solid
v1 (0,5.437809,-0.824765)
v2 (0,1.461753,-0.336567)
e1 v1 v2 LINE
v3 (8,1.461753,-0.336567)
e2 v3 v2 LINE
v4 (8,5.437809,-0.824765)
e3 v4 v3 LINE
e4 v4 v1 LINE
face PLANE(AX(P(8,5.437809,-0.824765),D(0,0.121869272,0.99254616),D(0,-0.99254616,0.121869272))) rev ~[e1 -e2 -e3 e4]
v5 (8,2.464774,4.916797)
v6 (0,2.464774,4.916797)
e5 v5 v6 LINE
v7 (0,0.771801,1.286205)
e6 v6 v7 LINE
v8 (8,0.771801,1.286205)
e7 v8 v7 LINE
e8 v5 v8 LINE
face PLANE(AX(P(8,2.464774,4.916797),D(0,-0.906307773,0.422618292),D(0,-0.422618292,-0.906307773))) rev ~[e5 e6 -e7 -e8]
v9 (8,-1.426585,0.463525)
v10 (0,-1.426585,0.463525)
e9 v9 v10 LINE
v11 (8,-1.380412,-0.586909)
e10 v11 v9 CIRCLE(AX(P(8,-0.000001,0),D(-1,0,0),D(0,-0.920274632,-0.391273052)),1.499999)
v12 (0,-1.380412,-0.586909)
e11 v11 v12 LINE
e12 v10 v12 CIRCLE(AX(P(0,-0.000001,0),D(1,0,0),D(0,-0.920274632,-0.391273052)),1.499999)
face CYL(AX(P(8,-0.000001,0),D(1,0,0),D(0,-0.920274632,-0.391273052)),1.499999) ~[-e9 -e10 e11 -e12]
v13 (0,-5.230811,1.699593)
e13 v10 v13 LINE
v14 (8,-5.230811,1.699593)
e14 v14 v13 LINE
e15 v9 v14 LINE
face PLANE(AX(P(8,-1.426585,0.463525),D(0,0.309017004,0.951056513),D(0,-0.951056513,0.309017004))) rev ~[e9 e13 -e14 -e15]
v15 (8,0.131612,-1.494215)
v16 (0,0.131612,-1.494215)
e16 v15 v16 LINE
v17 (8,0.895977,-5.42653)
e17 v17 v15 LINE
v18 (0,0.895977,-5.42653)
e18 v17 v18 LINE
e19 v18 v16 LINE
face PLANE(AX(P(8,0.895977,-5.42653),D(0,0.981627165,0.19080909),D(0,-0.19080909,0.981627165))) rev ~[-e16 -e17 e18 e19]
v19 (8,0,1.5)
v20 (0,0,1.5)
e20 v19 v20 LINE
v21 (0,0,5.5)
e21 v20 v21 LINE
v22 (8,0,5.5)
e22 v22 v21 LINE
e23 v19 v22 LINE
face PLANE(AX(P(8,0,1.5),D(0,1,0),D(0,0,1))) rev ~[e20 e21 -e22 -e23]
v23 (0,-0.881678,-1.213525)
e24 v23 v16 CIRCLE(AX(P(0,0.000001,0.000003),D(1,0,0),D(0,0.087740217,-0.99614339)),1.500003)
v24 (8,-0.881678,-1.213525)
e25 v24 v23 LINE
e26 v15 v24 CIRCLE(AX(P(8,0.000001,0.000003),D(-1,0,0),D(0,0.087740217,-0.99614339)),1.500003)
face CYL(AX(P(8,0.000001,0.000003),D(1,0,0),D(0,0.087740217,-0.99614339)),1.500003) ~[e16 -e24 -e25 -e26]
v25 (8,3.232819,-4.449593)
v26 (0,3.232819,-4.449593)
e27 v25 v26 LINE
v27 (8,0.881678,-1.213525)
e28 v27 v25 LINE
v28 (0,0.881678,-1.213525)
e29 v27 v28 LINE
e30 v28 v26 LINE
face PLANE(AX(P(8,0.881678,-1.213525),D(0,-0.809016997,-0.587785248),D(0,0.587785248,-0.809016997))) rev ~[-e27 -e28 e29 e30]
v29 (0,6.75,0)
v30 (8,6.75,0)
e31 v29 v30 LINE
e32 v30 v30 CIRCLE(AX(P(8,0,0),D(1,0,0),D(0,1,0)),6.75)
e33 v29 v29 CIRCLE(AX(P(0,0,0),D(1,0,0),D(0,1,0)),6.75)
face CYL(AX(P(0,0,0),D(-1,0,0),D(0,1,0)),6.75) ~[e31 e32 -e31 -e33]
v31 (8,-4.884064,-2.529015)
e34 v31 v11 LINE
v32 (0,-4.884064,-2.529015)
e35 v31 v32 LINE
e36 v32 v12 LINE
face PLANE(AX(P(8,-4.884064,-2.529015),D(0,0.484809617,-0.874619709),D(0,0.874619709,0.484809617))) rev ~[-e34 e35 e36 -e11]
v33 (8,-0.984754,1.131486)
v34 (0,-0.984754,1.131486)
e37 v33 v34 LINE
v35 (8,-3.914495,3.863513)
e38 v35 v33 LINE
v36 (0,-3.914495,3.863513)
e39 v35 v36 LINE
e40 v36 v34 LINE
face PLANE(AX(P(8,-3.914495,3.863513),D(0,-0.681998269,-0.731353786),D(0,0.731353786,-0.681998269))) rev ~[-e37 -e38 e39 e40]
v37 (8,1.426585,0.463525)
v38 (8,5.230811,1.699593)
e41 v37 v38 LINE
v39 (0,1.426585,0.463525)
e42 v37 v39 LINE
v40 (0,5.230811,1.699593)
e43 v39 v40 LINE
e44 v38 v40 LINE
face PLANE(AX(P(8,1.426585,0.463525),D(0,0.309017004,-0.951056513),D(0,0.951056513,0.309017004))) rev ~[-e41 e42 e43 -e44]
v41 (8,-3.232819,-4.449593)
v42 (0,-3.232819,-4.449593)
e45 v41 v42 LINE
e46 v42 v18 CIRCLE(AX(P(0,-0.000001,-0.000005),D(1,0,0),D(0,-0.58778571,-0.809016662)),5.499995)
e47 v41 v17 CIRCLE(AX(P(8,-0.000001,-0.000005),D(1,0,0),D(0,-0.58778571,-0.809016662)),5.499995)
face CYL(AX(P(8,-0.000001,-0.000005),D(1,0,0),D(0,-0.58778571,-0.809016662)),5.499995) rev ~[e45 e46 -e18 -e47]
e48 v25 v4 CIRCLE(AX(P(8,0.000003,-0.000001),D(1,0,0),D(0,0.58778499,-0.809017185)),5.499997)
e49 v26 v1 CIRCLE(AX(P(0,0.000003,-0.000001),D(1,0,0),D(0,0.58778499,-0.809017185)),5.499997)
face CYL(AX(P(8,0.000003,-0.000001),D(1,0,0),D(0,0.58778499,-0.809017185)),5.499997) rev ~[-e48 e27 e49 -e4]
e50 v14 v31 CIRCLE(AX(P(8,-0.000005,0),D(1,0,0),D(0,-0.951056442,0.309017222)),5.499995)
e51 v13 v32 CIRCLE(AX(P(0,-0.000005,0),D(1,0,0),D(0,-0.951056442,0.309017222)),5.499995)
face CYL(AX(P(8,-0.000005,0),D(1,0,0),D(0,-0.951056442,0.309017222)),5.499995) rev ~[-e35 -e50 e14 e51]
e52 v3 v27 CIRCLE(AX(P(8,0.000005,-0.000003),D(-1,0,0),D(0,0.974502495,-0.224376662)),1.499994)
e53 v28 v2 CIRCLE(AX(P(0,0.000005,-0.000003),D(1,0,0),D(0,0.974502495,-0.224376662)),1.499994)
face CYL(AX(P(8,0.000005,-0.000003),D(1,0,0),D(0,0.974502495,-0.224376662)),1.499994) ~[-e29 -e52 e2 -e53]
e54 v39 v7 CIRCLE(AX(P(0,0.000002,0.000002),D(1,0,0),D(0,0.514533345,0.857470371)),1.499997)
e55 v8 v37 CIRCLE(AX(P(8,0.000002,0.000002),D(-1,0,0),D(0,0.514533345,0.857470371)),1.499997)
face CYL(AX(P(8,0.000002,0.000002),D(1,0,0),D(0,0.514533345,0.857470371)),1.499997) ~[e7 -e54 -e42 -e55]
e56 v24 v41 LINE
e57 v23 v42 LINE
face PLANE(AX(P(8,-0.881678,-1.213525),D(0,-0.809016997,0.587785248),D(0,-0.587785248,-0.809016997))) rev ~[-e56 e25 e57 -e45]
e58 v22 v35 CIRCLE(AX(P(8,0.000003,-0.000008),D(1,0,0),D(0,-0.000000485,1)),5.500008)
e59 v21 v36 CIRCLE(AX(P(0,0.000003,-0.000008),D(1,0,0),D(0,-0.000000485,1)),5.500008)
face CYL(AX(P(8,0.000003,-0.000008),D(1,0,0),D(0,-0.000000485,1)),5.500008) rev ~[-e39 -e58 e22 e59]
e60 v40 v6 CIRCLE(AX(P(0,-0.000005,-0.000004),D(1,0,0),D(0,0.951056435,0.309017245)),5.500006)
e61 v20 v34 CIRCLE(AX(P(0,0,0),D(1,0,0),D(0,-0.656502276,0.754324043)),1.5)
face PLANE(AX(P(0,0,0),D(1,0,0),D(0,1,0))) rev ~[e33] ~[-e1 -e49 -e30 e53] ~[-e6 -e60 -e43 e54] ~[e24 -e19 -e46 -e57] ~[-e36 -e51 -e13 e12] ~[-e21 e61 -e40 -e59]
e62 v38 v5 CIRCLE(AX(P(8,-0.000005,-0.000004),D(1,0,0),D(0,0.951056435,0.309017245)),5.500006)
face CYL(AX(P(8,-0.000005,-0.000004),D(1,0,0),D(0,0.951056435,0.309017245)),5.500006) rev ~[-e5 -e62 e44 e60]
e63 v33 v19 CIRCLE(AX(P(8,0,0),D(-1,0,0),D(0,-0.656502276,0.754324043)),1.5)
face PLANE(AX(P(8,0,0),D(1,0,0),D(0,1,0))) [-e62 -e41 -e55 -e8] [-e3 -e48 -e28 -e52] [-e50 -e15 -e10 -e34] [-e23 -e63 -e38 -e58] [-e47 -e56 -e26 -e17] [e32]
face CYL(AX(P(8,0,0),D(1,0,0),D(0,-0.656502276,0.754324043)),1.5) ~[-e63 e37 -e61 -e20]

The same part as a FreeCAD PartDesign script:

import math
import FreeCAD as App
import Part
import Sketcher
from FreeCAD import Vector
Q = App.Units.Quantity

doc = App.newDocument("Part")
params = doc.addObject("Spreadsheet::Sheet", "Params")
for row, (alias, value) in enumerate([
    ("sketch1_diameter", "13.5 mm"),
    ("pad1_length", "8 mm"),
    ("sketch2_radius", "1.5 mm"),
    ("sketch2_height", "4 mm"),
], start=1):
    params.set(f"A{row}", alias)
    params.set(f"B{row}", "=" + value)
    params.setAlias(f"B{row}", alias)

body = doc.addObject("PartDesign::Body", "Body")

sketch1 = body.newObject("Sketcher::SketchObject", "Sketch")
sketch1.AttachmentSupport = (doc.getObject("YZ_Plane"), [""])
sketch1.MapMode = "FlatFace"
sketch1.addGeometry(Part.Circle(Vector(0, 0, 0), Vector(0, 0, 1), 7), False)
sketch1.addConstraint([
    Sketcher.Constraint("Coincident", 0, 3, -1, 1),
    Sketcher.Constraint("Diameter", 0, 13.5),
])
sketch1.setExpression("Constraints[1]", "Params.sketch1_diameter")
pad1 = body.newObject("PartDesign::Pad", "Pad")
pad1.Profile = sketch1
pad1.setExpression("Length", "Params.pad1_length")

sketch2 = body.newObject("Sketcher::SketchObject", "Sketch001")
sketch2.AttachmentSupport = (doc.getObject("YZ_Plane"), [""])
sketch2.MapMode = "FlatFace"
sketch2.AttachmentOffset = App.Placement(Vector(0, 0, 8), App.Rotation())
sketch2.addGeometry([
    Part.LineSegment(Vector(0, 1.5, 0), Vector(0, 5.5, 0)),
    Part.ArcOfCircle(Part.Circle(Vector(0, 0, 0), Vector(0, 0, 1), 5.5), math.radians(90), math.radians(135)),
    Part.LineSegment(Vector(-3.9, 3.9, 0), Vector(-1, 1.1, 0)),
    Part.ArcOfCircle(Part.Circle(Vector(0, 0, 0), Vector(0, 0, 1), 1.5), math.radians(90), math.radians(131)),
    Part.LineSegment(Vector(1.4, 0.5, 0), Vector(5.2, 1.7, 0)),
    Part.ArcOfCircle(Part.Circle(Vector(0, 0, 0), Vector(0, 0, 1), 5.5), math.radians(18), math.radians(63)),
    Part.LineSegment(Vector(2.5, 4.9, 0), Vector(0.8, 1.3, 0)),
    Part.ArcOfCircle(Part.Circle(Vector(0, 0, 0), Vector(0, 0, 1), 1.5), math.radians(18), math.radians(59)),
    Part.ArcOfCircle(Part.Circle(Vector(0, 0, 0), Vector(0, 0, 1), 5.5), math.radians(-54), math.radians(-9)),
    Part.LineSegment(Vector(5.4, -0.8, 0), Vector(1.5, -0.3, 0)),
    Part.ArcOfCircle(Part.Circle(Vector(0, 0, 0), Vector(0, 0, 1), 1.5), math.radians(-54), math.radians(-13)),
    Part.LineSegment(Vector(0.9, -1.2, 0), Vector(3.2, -4.4, 0)),
    Part.ArcOfCircle(Part.Circle(Vector(0, 0, 0), Vector(0, 0, 1), 5.5), math.radians(-126), math.radians(-81)),
    Part.LineSegment(Vector(0.9, -5.4, 0), Vector(0.1, -1.5, 0)),
    Part.ArcOfCircle(Part.Circle(Vector(0, 0, 0), Vector(0, 0, 1), 1.5), math.radians(-126), math.radians(-85)),
    Part.LineSegment(Vector(-0.9, -1.2, 0), Vector(-3.2, -4.4, 0)),
    Part.LineSegment(Vector(-1.4, 0.5, 0), Vector(-5.2, 1.7, 0)),
    Part.ArcOfCircle(Part.Circle(Vector(0, 0, 0), Vector(0, 0, 1), 5.5), math.radians(162), math.radians(207)),
    Part.LineSegment(Vector(-4.9, -2.5, 0), Vector(-1.4, -0.6, 0)),
    Part.ArcOfCircle(Part.Circle(Vector(0, 0, 0), Vector(0, 0, 1), 1.5), math.radians(162), math.radians(203)),
], False)
sketch2.addConstraint([
    Sketcher.Constraint("Coincident", 0, 2, 1, 1),
    Sketcher.Constraint("Coincident", 1, 2, 2, 1),
    Sketcher.Constraint("Coincident", 2, 2, 3, 2),
    Sketcher.Constraint("Coincident", 3, 1, 0, 1),
    Sketcher.Constraint("Coincident", 4, 2, 5, 1),
    Sketcher.Constraint("Coincident", 5, 2, 6, 1),
    Sketcher.Constraint("Coincident", 6, 2, 7, 2),
    Sketcher.Constraint("Coincident", 7, 1, 4, 1),
    Sketcher.Constraint("Coincident", 8, 2, 9, 1),
    Sketcher.Constraint("Coincident", 9, 2, 10, 2),
    Sketcher.Constraint("Coincident", 10, 1, 11, 1),
    Sketcher.Constraint("Coincident", 11, 2, 8, 1),
    Sketcher.Constraint("Coincident", 12, 2, 13, 1),
    Sketcher.Constraint("Coincident", 13, 2, 14, 2),
    Sketcher.Constraint("Coincident", 14, 1, 15, 1),
    Sketcher.Constraint("Coincident", 15, 2, 12, 1),
    Sketcher.Constraint("Coincident", 16, 2, 17, 1),
    Sketcher.Constraint("Coincident", 17, 2, 18, 1),
    Sketcher.Constraint("Coincident", 18, 2, 19, 2),
    Sketcher.Constraint("Coincident", 19, 1, 16, 1),
    Sketcher.Constraint("Vertical", 0),
    Sketcher.Constraint("Coincident", 1, 3, -1, 1),
    Sketcher.Constraint("Coincident", 3, 3, -1, 1),
    Sketcher.Constraint("Coincident", 5, 3, -1, 1),
    Sketcher.Constraint("Coincident", 7, 3, -1, 1),
    Sketcher.Constraint("Coincident", 8, 3, -1, 1),
    Sketcher.Constraint("Coincident", 10, 3, -1, 1),
    Sketcher.Constraint("Coincident", 12, 3, -1, 1),
    Sketcher.Constraint("Coincident", 14, 3, -1, 1),
    Sketcher.Constraint("Coincident", 17, 3, -1, 1),
    Sketcher.Constraint("Coincident", 19, 3, -1, 1),
    Sketcher.Constraint("Equal", 1, 5),
    Sketcher.Constraint("Equal", 8, 12),
    Sketcher.Constraint("Equal", 12, 17),
    Sketcher.Constraint("Equal", 3, 19),
    Sketcher.Constraint("Symmetric", 10, 1, 14, 1, -2),
    Sketcher.Constraint("Symmetric", 4, 2, 16, 2, -2),
    Sketcher.Constraint("Symmetric", 7, 1, 19, 1, -2),
    Sketcher.Constraint("PointOnObject", 0, 2, -2),
    Sketcher.Constraint("Horizontal", 11, 2, 15, 2),
    Sketcher.Constraint("Equal", 2, 6),
    Sketcher.Constraint("Equal", 6, 9),
    Sketcher.Constraint("Equal", 4, 11),
    Sketcher.Constraint("Equal", 9, 13),
    Sketcher.Constraint("Equal", 13, 18),
    Sketcher.Constraint("Radius", 3, 1.5),
    Sketcher.Constraint("DistanceY", 0, 1, 0, 2, 4.0),
    Sketcher.Constraint("Angle", 2, Q("-42.999993 deg")),
    Sketcher.Constraint("Angle", 4, Q("18.000001 deg")),
    Sketcher.Constraint("Angle", 6, Q("-115.000002 deg")),
    Sketcher.Constraint("Angle", 9, Q("173.000004 deg")),
    Sketcher.Constraint("Angle", 11, Q("-54 deg")),
    Sketcher.Constraint("Angle", 13, Q("101.000006 deg")),
    Sketcher.Constraint("Angle", 18, Q("29 deg")),
    Sketcher.Constraint("DistanceX", -1, 1, 6, 2, 0.771801),
    Sketcher.Constraint("DistanceX", 10, 1, 12, 2, 0.014299),
    Sketcher.Constraint("DistanceX", -1, 1, 4, 2, 5.230811),
])
sketch2.setExpression("Constraints[45]", "Params.sketch2_radius")
sketch2.setExpression("Constraints[46]", "Params.sketch2_height")
pocket1 = body.newObject("PartDesign::Pocket", "Pocket")
pocket1.Profile = sketch2
pocket1.Type = "ThroughAll"

doc.recompute()
